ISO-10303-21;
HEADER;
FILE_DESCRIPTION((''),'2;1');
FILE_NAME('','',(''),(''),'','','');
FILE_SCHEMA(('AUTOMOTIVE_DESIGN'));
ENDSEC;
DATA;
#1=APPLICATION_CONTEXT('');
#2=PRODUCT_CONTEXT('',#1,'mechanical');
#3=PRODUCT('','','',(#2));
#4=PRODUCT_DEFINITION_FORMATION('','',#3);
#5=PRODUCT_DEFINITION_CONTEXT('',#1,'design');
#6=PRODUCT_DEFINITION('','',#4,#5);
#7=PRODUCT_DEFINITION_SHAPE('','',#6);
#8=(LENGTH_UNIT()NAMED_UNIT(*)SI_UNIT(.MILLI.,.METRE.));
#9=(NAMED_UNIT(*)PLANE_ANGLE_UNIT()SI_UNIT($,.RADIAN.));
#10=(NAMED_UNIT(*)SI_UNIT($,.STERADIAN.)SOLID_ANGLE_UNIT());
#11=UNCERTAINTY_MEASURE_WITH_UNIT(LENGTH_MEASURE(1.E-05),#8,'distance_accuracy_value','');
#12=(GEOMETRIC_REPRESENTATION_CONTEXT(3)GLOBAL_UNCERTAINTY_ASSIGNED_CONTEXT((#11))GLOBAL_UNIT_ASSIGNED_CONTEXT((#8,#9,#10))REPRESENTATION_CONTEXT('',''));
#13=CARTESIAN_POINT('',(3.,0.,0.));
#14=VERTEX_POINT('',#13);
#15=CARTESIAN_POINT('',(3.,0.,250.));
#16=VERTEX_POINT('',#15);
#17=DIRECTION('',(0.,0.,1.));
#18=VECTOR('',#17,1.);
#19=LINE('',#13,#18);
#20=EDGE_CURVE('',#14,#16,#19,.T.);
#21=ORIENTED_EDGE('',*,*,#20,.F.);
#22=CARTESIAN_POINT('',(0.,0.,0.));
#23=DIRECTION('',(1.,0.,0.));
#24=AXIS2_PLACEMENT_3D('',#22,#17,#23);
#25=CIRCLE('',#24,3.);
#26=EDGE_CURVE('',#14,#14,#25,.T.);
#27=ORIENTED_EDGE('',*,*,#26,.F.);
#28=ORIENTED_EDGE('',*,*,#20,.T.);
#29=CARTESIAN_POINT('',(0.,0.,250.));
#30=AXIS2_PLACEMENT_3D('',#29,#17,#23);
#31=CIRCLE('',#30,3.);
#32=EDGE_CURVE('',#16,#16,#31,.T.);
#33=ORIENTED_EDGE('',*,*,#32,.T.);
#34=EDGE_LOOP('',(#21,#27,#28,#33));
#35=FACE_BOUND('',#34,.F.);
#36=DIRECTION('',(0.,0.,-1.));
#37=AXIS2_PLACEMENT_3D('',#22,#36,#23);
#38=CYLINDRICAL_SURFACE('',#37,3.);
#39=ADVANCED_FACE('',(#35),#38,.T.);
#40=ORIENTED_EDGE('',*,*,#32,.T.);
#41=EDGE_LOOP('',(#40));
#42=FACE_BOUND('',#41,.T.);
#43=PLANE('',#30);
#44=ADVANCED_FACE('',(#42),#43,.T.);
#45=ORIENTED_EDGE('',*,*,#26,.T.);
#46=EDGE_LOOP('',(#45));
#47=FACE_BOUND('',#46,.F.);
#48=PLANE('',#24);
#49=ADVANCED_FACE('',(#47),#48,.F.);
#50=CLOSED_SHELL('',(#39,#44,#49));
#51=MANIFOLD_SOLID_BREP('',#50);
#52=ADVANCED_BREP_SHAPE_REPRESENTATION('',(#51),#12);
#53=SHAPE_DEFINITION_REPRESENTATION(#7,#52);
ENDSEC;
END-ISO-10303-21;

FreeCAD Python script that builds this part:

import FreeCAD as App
import Part
import Sketcher

V = App.Vector
Q = App.Units.Quantity

doc = App.newDocument("Part")
params = doc.addObject("Spreadsheet::Sheet", "Params")
for row, (alias, value) in enumerate([
    ("sketch1_diameter", "6 mm"),
    ("pad1_length", "250 mm"),
], start=1):
    params.set(f"A{row}", alias)
    params.set(f"B{row}", "=" + value)
    params.setAlias(f"B{row}", alias)

body = doc.addObject("PartDesign::Body", "Body")

# Sketch on XY plane
sketch1 = body.newObject("Sketcher::SketchObject", "Sketch")
sketch1.AttachmentSupport = (doc.getObject("XY_Plane"), [""])
sketch1.MapMode = "FlatFace"
sketch1.addGeometry(Part.Circle(V(0, 0, 0), V(0, 0, 1), 3), False)
sketch1.addConstraint(Sketcher.Constraint("Coincident", 0, 3, -1, 1))
sketch1.addConstraint(Sketcher.Constraint("Diameter", 0, Q("6 mm")))
sketch1.setExpression("Constraints[1]", "Params.sketch1_diameter")
pad1 = body.newObject("PartDesign::Pad", "Pad")
pad1.Profile = sketch1
pad1.setExpression("Length", "Params.pad1_length")

doc.recompute()
